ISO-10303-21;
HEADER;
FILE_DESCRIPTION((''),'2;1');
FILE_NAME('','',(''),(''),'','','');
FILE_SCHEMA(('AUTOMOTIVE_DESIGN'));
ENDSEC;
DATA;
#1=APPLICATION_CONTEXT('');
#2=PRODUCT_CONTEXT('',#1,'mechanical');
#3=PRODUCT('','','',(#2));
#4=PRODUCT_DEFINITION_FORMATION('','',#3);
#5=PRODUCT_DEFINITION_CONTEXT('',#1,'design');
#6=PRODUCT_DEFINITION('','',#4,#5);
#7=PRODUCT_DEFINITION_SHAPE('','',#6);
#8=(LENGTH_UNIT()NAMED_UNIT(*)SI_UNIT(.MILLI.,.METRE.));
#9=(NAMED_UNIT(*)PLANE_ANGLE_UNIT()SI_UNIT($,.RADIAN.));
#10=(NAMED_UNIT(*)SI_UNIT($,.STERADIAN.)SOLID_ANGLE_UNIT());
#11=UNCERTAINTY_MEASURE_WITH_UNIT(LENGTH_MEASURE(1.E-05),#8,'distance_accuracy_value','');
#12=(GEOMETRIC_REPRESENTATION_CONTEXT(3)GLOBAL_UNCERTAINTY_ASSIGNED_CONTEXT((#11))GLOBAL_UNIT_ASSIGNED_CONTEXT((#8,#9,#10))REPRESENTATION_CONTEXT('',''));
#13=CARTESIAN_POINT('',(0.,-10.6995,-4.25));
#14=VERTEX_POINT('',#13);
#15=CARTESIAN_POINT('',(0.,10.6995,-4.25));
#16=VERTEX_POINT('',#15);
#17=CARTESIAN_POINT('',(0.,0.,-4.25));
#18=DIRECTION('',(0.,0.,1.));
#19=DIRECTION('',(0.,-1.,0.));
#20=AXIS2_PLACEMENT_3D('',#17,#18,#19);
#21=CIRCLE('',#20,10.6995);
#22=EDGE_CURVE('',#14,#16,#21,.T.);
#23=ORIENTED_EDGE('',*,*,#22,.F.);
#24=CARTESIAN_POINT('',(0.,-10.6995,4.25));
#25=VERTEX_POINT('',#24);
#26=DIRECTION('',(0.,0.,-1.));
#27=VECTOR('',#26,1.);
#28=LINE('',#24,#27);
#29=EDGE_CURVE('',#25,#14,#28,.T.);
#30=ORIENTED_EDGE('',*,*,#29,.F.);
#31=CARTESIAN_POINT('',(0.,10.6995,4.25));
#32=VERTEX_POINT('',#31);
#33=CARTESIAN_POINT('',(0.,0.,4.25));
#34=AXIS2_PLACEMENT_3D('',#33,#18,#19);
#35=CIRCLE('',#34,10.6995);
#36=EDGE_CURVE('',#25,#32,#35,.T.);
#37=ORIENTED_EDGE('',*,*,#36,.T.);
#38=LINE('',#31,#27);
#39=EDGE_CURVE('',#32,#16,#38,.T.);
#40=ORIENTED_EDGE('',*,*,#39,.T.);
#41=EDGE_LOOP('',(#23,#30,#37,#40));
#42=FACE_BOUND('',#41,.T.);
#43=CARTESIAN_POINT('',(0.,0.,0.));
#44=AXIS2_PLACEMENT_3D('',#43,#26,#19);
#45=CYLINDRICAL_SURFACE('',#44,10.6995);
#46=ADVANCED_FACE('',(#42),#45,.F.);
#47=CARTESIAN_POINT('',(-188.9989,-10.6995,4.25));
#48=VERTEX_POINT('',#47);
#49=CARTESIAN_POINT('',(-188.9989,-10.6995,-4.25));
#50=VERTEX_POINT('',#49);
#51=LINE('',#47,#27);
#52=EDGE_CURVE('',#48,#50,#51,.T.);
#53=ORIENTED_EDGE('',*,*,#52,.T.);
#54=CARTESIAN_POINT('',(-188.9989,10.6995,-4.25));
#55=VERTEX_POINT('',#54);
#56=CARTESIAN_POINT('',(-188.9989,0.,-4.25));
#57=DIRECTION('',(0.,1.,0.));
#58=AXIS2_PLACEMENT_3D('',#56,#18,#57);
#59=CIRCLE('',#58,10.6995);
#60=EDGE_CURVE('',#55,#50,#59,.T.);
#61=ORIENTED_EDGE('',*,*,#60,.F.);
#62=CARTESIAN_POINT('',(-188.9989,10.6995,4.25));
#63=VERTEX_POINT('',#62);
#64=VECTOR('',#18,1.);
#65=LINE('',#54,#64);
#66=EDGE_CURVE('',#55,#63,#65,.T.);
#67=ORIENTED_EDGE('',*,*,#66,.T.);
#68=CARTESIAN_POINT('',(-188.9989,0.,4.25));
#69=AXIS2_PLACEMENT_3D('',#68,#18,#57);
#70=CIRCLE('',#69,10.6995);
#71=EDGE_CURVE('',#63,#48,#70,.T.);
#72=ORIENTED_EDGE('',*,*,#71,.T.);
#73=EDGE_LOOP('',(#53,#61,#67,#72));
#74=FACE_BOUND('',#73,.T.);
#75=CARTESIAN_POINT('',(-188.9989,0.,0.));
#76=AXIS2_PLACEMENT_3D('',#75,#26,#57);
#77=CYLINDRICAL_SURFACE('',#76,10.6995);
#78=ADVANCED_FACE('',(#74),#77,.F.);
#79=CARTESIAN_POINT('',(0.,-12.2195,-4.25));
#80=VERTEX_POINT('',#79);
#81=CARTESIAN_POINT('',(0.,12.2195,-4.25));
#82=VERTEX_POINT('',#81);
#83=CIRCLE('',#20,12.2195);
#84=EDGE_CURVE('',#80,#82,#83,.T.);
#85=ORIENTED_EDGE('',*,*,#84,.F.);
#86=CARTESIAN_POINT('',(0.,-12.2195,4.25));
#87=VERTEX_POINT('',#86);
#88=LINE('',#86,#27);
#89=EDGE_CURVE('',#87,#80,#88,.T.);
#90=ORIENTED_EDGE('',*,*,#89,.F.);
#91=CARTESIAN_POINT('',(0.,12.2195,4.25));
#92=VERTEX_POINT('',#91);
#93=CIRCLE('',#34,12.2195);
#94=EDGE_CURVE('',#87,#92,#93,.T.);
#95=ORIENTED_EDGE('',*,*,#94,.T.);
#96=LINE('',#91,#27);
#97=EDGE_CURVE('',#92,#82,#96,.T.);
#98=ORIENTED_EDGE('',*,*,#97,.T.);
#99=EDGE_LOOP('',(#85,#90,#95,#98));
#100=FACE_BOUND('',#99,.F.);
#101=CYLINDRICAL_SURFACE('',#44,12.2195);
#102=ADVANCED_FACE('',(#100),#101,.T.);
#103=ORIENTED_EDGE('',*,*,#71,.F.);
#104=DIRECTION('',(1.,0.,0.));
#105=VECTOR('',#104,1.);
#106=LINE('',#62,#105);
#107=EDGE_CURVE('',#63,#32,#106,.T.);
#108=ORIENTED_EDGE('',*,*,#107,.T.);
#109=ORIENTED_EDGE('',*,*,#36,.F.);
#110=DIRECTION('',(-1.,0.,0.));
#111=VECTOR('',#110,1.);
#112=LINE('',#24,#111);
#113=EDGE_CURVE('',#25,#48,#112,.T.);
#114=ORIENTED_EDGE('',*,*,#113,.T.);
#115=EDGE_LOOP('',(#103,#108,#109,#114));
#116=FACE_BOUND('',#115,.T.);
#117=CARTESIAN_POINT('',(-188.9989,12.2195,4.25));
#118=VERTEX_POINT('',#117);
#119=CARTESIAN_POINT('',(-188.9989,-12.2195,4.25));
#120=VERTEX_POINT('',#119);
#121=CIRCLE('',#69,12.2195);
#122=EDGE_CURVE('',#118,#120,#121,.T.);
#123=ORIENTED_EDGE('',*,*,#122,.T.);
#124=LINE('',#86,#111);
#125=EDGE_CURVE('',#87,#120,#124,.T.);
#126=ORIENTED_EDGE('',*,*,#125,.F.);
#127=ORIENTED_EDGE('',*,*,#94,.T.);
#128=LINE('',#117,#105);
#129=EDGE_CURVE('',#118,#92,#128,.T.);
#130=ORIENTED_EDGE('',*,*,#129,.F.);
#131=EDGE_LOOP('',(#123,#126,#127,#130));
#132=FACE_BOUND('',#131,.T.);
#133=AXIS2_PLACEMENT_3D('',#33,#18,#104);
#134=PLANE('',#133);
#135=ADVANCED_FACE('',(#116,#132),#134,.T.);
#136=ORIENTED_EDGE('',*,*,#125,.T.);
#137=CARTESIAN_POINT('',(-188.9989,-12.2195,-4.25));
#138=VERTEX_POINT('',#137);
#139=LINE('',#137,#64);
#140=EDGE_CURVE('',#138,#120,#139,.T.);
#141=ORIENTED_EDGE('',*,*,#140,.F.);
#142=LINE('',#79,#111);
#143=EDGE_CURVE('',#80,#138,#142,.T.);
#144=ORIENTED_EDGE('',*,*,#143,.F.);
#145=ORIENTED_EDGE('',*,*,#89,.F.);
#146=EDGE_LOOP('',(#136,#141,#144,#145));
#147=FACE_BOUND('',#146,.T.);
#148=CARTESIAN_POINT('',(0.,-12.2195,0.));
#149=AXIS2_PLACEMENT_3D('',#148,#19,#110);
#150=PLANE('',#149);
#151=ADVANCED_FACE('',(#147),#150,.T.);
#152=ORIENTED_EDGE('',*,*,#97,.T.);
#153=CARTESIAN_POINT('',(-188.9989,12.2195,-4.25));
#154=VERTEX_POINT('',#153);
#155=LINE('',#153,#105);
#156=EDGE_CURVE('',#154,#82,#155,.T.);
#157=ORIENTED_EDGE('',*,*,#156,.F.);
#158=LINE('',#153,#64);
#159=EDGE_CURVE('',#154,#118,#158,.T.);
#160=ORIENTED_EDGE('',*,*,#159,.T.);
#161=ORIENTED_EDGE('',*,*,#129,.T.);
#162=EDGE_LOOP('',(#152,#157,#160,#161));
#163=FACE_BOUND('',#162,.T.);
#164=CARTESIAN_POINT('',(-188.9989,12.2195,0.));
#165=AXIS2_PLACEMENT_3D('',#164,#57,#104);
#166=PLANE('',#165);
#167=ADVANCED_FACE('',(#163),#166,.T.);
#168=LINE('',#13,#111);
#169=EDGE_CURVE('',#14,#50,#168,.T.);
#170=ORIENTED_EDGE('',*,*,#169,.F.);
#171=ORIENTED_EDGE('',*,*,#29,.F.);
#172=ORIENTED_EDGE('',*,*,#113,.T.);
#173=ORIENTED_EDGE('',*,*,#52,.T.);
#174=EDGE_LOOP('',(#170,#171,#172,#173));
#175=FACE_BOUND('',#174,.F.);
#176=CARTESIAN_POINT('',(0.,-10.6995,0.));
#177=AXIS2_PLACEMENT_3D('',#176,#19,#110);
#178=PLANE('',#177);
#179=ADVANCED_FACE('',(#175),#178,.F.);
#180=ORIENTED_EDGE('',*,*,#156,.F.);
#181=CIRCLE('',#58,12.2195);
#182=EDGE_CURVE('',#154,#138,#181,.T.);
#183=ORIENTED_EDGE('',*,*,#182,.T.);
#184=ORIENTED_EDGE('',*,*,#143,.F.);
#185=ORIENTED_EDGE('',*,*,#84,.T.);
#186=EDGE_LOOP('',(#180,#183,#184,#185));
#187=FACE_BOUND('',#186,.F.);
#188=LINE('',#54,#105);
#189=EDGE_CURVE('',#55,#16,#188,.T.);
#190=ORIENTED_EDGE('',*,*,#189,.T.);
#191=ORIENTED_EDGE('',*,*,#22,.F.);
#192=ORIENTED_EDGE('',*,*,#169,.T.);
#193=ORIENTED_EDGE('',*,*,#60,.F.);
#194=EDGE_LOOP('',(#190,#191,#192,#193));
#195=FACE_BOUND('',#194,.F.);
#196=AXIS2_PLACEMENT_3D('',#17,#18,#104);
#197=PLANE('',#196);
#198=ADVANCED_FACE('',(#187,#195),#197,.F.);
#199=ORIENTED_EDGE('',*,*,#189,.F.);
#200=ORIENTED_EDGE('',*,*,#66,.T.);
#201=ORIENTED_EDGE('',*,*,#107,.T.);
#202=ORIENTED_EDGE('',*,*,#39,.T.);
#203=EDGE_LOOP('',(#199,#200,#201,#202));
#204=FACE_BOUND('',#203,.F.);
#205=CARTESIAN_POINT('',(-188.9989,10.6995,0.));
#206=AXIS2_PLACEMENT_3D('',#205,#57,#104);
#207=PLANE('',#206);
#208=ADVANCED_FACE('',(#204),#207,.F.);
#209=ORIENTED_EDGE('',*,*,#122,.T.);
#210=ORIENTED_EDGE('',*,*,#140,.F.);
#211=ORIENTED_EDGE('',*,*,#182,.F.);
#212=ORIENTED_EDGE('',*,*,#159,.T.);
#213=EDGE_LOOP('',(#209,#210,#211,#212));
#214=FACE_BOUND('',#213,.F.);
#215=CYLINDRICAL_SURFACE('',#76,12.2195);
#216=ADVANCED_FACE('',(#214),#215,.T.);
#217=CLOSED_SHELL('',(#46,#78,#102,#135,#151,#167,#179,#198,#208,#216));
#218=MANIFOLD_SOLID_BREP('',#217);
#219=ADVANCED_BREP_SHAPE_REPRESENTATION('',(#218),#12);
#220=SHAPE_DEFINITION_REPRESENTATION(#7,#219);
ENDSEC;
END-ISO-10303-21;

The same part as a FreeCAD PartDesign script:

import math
import FreeCAD as App
import Part
import Sketcher
from FreeCAD import Vector

doc = App.newDocument("Part")
body = doc.addObject("PartDesign::Body", "Body")

sketch1 = body.newObject("Sketcher::SketchObject", "Sketch")
sketch1.AttachmentSupport = (doc.getObject("XY_Plane"), [""])
sketch1.MapMode = "FlatFace"
sketch1.addGeometry([
    Part.LineSegment(Vector(0, 12.2195, 0), Vector(-188.9989, 12.2195, 0)),
    Part.ArcOfCircle(Part.Circle(Vector(-188.9989, 0, 0), Vector(0, 0, 1), 12.2195), math.radians(90), math.radians(270)),
    Part.LineSegment(Vector(-188.9989, -12.2195, 0), Vector(0, -12.2195, 0)),
    Part.ArcOfCircle(Part.Circle(Vector(0, 0, 0), Vector(0, 0, 1), 12.2195), math.radians(-90), math.radians(90)),
    Part.ArcOfCircle(Part.Circle(Vector(-188.9989, 0, 0), Vector(0, 0, 1), 10.6995), math.radians(90), math.radians(270)),
    Part.LineSegment(Vector(-188.9989, 10.6995, 0), Vector(0, 10.6995, 0)),
    Part.ArcOfCircle(Part.Circle(Vector(0, 0, 0), Vector(0, 0, 1), 10.6995), math.radians(-90), math.radians(90)),
    Part.LineSegment(Vector(0, -10.6995, 0), Vector(-188.9989, -10.6995, 0)),
], False)
sketch1.addConstraint([
    Sketcher.Constraint("Tangent", 0, 2, 1, 1),
    Sketcher.Constraint("Tangent", 1, 2, 2, 1),
    Sketcher.Constraint("Tangent", 2, 2, 3, 1),
    Sketcher.Constraint("Tangent", 3, 2, 0, 1),
    Sketcher.Constraint("Tangent", 4, 1, 5, 1),
    Sketcher.Constraint("Tangent", 5, 2, 6, 2),
    Sketcher.Constraint("Tangent", 6, 1, 7, 1),
    Sketcher.Constraint("Tangent", 7, 2, 4, 2),
    Sketcher.Constraint("Horizontal", 0),
    Sketcher.Constraint("Horizontal", 2),
    Sketcher.Constraint("Horizontal", 5),
    Sketcher.Constraint("Horizontal", 7),
    Sketcher.Constraint("Coincident", 3, 3, -1, 1),
    Sketcher.Constraint("Coincident", 6, 3, -1, 1),
    Sketcher.Constraint("Vertical", 4, 3, 0, 2),
    Sketcher.Constraint("DistanceY", 4, 1, 0, 2, 1.52),
    Sketcher.Constraint("Radius", 1, 12.2195),
    Sketcher.Constraint("DistanceX", 0, 2, 0, 1, 188.999),
])
pad1 = body.newObject("PartDesign::Pad", "Pad")
pad1.Profile = sketch1
pad1.Length = 8.5
pad1.Midplane = True

doc.recompute()
